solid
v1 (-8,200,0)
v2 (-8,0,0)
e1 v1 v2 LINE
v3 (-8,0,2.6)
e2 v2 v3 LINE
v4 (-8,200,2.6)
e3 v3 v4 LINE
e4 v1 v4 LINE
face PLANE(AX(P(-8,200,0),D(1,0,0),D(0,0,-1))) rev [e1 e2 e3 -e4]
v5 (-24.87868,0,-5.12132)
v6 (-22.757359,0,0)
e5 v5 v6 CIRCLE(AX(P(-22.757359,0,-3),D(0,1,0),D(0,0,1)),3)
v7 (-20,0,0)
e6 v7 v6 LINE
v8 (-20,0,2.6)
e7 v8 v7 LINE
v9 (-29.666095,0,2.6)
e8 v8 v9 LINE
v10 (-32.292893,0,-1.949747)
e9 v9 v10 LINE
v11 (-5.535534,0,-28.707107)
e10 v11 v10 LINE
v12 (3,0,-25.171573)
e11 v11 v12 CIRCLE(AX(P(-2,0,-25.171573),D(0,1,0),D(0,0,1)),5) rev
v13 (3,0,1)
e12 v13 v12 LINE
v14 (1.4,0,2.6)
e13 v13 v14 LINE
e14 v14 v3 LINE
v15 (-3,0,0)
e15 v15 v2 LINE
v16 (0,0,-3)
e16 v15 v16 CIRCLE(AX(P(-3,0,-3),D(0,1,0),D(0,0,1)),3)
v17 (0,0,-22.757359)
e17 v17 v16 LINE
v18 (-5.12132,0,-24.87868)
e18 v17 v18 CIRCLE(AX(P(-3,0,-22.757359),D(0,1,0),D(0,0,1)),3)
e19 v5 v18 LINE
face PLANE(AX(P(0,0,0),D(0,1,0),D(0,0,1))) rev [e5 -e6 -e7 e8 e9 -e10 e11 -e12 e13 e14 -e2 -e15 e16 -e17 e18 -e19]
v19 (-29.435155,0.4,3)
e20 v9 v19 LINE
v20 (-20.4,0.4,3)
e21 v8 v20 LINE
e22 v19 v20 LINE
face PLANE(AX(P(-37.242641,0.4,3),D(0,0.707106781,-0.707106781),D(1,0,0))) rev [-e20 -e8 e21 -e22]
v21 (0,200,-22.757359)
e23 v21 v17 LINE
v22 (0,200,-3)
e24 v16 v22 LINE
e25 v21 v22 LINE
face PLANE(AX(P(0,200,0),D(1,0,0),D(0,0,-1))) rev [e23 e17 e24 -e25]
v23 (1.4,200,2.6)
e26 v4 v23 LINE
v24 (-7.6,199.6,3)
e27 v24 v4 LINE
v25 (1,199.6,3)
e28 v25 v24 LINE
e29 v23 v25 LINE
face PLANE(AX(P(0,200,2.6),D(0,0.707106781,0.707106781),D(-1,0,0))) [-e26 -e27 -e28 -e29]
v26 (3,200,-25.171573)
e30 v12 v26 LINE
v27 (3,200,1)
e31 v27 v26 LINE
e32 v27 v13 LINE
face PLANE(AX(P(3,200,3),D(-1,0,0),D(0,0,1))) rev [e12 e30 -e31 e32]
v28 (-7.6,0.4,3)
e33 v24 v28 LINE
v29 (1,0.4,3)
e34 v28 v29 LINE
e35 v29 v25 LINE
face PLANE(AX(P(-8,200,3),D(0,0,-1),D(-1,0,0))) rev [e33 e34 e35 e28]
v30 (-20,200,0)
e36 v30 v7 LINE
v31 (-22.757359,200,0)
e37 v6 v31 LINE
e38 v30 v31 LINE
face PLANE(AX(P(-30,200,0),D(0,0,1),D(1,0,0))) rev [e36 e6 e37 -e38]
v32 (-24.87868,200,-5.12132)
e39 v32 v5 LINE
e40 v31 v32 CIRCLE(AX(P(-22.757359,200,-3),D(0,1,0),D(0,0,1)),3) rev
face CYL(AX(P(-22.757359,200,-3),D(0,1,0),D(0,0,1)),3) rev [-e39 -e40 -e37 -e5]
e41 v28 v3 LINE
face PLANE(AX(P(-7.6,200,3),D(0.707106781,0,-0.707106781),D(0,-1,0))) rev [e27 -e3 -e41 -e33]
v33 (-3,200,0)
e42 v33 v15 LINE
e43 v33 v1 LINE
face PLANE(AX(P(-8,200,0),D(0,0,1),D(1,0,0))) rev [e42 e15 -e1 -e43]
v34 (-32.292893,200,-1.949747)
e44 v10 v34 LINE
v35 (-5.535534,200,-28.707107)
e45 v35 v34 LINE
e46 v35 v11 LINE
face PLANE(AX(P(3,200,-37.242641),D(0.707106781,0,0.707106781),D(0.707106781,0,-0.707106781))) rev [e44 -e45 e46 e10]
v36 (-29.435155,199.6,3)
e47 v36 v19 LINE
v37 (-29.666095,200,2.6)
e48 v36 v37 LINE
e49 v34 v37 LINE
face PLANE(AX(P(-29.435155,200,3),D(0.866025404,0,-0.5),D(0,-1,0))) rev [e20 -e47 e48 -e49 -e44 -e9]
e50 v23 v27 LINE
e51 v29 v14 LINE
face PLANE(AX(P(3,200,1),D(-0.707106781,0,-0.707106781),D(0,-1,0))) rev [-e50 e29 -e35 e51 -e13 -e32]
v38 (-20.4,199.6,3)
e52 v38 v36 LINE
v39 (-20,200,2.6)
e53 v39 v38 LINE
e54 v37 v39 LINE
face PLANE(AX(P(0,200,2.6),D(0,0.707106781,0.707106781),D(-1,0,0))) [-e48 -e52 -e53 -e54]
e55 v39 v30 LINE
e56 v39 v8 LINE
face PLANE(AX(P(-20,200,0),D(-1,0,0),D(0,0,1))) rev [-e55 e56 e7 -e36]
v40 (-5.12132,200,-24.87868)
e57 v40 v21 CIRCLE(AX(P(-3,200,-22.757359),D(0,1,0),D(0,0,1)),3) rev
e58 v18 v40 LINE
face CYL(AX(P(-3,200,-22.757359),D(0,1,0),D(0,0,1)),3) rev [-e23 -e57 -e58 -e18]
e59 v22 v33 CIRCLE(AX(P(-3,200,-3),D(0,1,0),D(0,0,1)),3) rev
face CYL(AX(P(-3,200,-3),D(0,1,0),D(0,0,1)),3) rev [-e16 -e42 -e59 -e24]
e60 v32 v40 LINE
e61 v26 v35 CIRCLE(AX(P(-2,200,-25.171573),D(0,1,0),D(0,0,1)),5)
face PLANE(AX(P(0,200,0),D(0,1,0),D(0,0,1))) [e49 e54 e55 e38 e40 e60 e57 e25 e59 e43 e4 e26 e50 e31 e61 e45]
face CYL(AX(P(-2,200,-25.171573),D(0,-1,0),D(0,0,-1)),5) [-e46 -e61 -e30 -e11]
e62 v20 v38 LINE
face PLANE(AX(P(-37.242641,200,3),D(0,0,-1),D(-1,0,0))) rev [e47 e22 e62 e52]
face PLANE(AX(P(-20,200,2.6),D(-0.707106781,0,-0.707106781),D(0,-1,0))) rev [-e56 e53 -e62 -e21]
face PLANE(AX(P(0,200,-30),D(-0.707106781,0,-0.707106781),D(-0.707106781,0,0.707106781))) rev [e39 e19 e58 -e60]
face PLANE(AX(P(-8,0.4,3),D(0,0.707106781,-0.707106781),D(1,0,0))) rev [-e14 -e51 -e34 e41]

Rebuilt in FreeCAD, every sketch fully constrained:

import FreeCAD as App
import Part
import Sketcher
Q = App.Units.Quantity


def edges_at(feature, points):
    """Names of the edges that pass closest to the given points."""
    edges = feature.Shape.Edges
    near = lambda p: min(range(len(edges)), key=lambda i: edges[i].distToShape(Part.Vertex(*p))[0])
    return sorted({f"Edge{near(p) + 1}" for p in points})


def add_polygon(sketch, points):
    """Adds a closed chain of lines whose ends are joined by coincident constraints."""
    first, n = sketch.GeometryCount, len(points)
    for a, b in zip(points, points[1:] + points[:1]):
        sketch.addGeometry(Part.LineSegment(App.Vector(*a, 0), App.Vector(*b, 0)), False)
    for i in range(n):
        sketch.addConstraint(Sketcher.Constraint("Coincident", first + i, 2, first + (i + 1) % n, 1))

doc = App.newDocument("Part")
params = doc.addObject("Spreadsheet::Sheet", "Params")
for row, (alias, value) in enumerate([
    ("sketch1_width", "8 mm"),
    ("sketch1_width2", "11 mm"),
    ("sketch1_width3", "10 mm"),
    ("sketch1_height", "30 mm"),
    ("sketch1_height2", "3 mm"),
    ("pad1_length", "200 mm"),
    ("fillet_radius", "3 mm"),
    ("fillet2_radius", "5 mm"),
    ("chamfer_size", "7 mm"),
    ("chamfer_size2", "7.807486 mm"),
    ("chamfer2_size", "2 mm"),
    ("chamfer3_size", "0.4 mm"),
], start=1):
    params.set(f"A{row}", alias)
    params.set(f"B{row}", "=" + value)
    params.setAlias(f"B{row}", alias)

body = doc.addObject("PartDesign::Body", "Body")

sketch1 = body.newObject("Sketcher::SketchObject", "Sketch")
sketch1.AttachmentSupport = (doc.getObject("XZ_Plane"), [""])
sketch1.MapMode = "FlatFace"
add_polygon(sketch1, [(0, -30), (0, 0), (-8, 0), (-8, 3), (3, 3), (3, -37.2), (-37.2, 3), (-20, 3), (-20, 0), (-30, 0)])
sketch1.addConstraint(Sketcher.Constraint("Vertical", 0))
sketch1.addConstraint(Sketcher.Constraint("Horizontal", 1))
sketch1.addConstraint(Sketcher.Constraint("Vertical", 2))
sketch1.addConstraint(Sketcher.Constraint("Horizontal", 3))
sketch1.addConstraint(Sketcher.Constraint("Vertical", 4))
sketch1.addConstraint(Sketcher.Constraint("Horizontal", 6))
sketch1.addConstraint(Sketcher.Constraint("Vertical", 7))
sketch1.addConstraint(Sketcher.Constraint("Horizontal", 8))
sketch1.addConstraint(Sketcher.Constraint("Coincident", 0, 2, -1, 1))
sketch1.addConstraint(Sketcher.Constraint("PointOnObject", 7, 2, -1))
sketch1.addConstraint(Sketcher.Constraint("Parallel", 5, 9))
sketch1.addConstraint(Sketcher.Constraint("Horizontal", 3, 2, 5, 2))
sketch1.addConstraint(Sketcher.Constraint("DistanceX", 1, 2, 1, 1, Q("8 mm")))
sketch1.addConstraint(Sketcher.Constraint("DistanceX", 3, 1, 3, 2, Q("11 mm")))
sketch1.addConstraint(Sketcher.Constraint("DistanceX", 8, 2, 8, 1, Q("10 mm")))
sketch1.addConstraint(Sketcher.Constraint("DistanceY", 0, 1, 0, 2, Q("30 mm")))
sketch1.addConstraint(Sketcher.Constraint("DistanceY", 2, 1, 2, 2, Q("3 mm")))
sketch1.addConstraint(Sketcher.Constraint("Angle", 5, Q("135 deg")))
sketch1.addConstraint(Sketcher.Constraint("DistanceX", 6, 1, 6, 2, Q("17.242641 mm")))
sketch1.setExpression("Constraints[22]", "Params.sketch1_width")
sketch1.setExpression("Constraints[23]", "Params.sketch1_width2")
sketch1.setExpression("Constraints[24]", "Params.sketch1_width3")
sketch1.setExpression("Constraints[25]", "Params.sketch1_height")
sketch1.setExpression("Constraints[26]", "Params.sketch1_height2")
pad1 = body.newObject("PartDesign::Pad", "Pad")
pad1.Profile = sketch1
pad1.setExpression("Length", "Params.pad1_length")
pad1.Reversed = True
doc.recompute()

fillet = body.newObject("PartDesign::Fillet", "Fillet")
fillet.Base = (pad1, edges_at(pad1, [(0, 100, 0), (0, 100, -30), (-30, 100, 0)]))
fillet.setExpression("Radius", "Params.fillet_radius")
doc.recompute()

fillet2 = body.newObject("PartDesign::Fillet", "Fillet001")
fillet2.Base = (fillet, edges_at(fillet, [(3, 100, -37.243)]))
fillet2.setExpression("Radius", "Params.fillet2_radius")
doc.recompute()

chamfer = body.newObject("PartDesign::Chamfer", "Chamfer")
chamfer.Base = (fillet2, edges_at(fillet2, [(-37.243, 100, 3)]))
chamfer.ChamferType = "Two distances"
chamfer.setExpression("Size", "Params.chamfer_size")
chamfer.setExpression("Size2", "Params.chamfer_size2")
doc.recompute()

chamfer2 = body.newObject("PartDesign::Chamfer", "Chamfer001")
chamfer2.Base = (chamfer, edges_at(chamfer, [(3, 100, 3)]))
chamfer2.setExpression("Size", "Params.chamfer2_size")
doc.recompute()

chamfer3 = body.newObject("PartDesign::Chamfer", "Chamfer002")
chamfer3.Base = (chamfer2, edges_at(chamfer2, [
    (-3.5, 200, 3),
    (-3.5, 0, 3),
    (-20, 100, 3),
    (-8, 100, 3),
    (-24.718, 0, 3),
    (-24.718, 200, 3),
]))
chamfer3.setExpression("Size", "Params.chamfer3_size")

doc.recompute()
